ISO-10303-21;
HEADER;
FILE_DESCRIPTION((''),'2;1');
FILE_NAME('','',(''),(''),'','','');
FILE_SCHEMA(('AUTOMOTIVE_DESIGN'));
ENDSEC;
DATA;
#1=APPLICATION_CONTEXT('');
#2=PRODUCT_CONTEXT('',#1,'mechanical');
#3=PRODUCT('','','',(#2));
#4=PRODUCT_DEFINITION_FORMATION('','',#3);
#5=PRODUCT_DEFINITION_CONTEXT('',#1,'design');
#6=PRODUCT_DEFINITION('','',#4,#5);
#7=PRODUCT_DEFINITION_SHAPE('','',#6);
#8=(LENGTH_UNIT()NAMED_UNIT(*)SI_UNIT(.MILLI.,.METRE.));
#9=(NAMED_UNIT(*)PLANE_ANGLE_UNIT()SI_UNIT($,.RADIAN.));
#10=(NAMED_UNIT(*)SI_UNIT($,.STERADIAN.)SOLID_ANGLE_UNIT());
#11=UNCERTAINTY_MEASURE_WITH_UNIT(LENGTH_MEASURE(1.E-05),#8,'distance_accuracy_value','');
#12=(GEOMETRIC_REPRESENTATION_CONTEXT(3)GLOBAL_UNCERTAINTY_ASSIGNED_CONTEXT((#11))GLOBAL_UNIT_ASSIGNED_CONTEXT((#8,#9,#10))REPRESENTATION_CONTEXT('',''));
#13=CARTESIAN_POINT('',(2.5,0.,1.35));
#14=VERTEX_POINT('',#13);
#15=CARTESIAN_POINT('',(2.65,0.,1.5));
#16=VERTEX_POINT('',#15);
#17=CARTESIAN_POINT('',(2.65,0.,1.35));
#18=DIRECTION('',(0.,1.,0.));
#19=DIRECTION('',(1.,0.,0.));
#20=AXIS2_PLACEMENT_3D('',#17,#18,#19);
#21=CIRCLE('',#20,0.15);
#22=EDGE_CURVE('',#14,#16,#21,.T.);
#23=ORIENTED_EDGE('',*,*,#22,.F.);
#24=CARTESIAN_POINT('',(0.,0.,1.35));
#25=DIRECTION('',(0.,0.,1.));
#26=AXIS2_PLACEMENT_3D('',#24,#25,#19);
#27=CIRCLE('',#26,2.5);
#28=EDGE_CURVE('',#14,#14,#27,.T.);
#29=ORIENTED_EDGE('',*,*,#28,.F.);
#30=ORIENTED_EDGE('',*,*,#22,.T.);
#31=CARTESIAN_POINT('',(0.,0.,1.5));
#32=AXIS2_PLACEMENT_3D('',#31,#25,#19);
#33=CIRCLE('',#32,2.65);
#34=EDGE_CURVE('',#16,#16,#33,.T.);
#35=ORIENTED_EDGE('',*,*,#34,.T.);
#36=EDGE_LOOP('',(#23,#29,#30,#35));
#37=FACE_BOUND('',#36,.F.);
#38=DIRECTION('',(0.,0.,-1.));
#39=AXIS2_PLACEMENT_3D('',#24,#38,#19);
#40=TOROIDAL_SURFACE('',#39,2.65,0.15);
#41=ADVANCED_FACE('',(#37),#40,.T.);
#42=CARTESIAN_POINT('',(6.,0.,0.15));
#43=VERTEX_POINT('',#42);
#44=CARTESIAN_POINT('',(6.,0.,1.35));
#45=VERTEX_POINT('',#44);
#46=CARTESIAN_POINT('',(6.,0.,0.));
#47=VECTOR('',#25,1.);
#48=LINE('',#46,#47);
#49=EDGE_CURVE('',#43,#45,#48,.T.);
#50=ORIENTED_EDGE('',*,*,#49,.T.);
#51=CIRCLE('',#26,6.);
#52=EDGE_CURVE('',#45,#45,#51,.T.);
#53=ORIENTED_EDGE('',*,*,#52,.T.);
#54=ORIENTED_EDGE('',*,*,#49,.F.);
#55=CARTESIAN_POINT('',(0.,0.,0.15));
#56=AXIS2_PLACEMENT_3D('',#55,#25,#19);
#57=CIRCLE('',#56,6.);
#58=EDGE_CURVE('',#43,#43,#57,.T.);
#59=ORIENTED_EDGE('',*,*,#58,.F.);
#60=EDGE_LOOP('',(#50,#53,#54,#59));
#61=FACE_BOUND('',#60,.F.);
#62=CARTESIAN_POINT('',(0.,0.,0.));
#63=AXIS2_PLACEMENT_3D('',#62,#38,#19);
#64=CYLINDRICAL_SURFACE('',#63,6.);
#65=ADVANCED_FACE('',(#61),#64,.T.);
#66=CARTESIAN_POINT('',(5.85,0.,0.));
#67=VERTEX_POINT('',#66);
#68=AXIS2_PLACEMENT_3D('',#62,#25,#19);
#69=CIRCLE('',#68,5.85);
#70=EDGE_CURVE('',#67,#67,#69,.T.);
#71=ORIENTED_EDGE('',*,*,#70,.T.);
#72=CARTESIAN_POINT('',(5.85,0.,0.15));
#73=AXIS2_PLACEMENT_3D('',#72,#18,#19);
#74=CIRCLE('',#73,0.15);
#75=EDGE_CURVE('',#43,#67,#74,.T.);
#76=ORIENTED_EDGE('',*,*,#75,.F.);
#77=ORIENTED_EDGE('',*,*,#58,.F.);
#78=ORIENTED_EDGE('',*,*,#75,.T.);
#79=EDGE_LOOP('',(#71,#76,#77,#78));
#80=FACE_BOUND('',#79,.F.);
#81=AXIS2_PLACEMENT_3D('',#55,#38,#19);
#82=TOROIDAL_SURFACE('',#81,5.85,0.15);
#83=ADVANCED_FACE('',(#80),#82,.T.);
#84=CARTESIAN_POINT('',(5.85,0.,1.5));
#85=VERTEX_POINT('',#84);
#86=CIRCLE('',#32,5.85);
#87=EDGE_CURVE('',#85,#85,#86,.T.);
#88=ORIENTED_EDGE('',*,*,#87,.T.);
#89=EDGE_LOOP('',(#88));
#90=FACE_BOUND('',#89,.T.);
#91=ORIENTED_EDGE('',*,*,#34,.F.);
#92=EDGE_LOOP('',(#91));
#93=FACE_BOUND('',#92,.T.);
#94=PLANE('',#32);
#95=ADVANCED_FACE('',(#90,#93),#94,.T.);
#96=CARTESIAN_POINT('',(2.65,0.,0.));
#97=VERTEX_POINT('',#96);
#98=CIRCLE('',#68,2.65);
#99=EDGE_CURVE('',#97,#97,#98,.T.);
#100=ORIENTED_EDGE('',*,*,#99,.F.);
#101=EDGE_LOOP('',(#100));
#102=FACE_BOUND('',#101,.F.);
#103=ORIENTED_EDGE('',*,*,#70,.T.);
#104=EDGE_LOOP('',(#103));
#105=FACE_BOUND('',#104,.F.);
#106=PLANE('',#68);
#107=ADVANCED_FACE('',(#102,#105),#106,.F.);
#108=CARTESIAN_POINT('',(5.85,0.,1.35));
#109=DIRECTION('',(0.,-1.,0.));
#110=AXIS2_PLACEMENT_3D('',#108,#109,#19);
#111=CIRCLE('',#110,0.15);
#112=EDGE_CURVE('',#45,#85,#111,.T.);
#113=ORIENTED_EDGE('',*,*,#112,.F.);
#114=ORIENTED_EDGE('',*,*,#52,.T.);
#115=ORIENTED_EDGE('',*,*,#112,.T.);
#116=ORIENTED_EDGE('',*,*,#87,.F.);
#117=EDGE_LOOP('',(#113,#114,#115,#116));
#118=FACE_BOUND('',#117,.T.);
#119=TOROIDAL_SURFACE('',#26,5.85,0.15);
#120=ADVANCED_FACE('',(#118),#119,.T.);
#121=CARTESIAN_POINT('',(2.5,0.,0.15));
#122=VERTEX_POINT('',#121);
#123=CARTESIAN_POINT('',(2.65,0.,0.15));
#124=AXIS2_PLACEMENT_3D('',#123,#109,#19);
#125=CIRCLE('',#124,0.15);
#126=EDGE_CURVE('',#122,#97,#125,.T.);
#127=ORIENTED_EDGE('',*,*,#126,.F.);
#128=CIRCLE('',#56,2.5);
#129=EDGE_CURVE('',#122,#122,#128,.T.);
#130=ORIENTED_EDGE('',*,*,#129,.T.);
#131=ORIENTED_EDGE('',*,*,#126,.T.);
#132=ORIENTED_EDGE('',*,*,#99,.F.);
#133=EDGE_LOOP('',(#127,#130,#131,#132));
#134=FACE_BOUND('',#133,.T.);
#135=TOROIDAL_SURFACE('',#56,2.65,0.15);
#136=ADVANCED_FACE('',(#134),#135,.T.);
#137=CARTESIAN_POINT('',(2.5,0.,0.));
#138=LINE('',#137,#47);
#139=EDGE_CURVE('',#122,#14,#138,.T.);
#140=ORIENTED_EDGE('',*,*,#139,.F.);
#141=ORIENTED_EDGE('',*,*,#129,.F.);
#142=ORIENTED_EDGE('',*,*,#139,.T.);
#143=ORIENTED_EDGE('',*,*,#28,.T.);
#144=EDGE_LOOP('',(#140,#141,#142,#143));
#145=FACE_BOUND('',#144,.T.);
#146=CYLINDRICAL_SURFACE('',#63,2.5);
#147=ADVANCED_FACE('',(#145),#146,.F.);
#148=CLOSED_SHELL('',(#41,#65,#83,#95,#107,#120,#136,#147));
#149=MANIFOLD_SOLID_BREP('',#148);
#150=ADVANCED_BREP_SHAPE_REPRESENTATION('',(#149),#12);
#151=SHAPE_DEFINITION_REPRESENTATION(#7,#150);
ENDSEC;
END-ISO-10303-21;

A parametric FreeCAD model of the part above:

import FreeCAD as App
import Part
import Sketcher

V = App.Vector


def edges_at(feature, points):
    """Names of the edges that pass closest to the given points."""
    edges = feature.Shape.Edges
    near = lambda p: min(range(len(edges)), key=lambda i: edges[i].distToShape(Part.Vertex(*p))[0])
    return sorted({f"Edge{near(p) + 1}" for p in points})

doc = App.newDocument("Part")
params = doc.addObject("Spreadsheet::Sheet", "Params")
for row, (alias, value) in enumerate([
    ("sketch1_diameter", "12 mm"),
    ("sketch1_diameter2", "5 mm"),
    ("pad1_length", "1.5 mm"),
    ("fillet_radius", "0.15 mm"),
], start=1):
    params.set(f"A{row}", alias)
    params.set(f"B{row}", "=" + value)
    params.setAlias(f"B{row}", alias)

body = doc.addObject("PartDesign::Body", "Body")

# Sketch on XY plane
sketch1 = doc.addObject("Sketcher::SketchObject", "Sketch")
body.addObject(sketch1)
sketch1.AttachmentSupport = (doc.XY_Plane, [""])
sketch1.MapMode = "FlatFace"
sketch1.addGeometry([
    Part.Circle(V(0, 0, 0), V(0, 0, 1), 6),
    Part.Circle(V(0, 0, 0), V(0, 0, 1), 2.5),
], False)
sketch1.addConstraint([
    Sketcher.Constraint("Coincident", 0, 3, -1, 1),
    Sketcher.Constraint("Coincident", 1, 3, -1, 1),
    Sketcher.Constraint("Diameter", 0, 12.0),
    Sketcher.Constraint("Diameter", 1, 5.0),
])
sketch1.setExpression("Constraints[2]", "Params.sketch1_diameter")
sketch1.setExpression("Constraints[3]", "Params.sketch1_diameter2")
pad1 = doc.addObject("PartDesign::Pad", "Pad")
body.addObject(pad1)
pad1.Profile = sketch1
pad1.setExpression("Length", "Params.pad1_length")
doc.recompute()

fillet = doc.addObject("PartDesign::Fillet", "Fillet")
body.addObject(fillet)
fillet.Base = (pad1, edges_at(pad1, [
    (-6, 0, 0),
    (-6, 0, 1.5),
    (-2.5, 0, 0),
    (-2.5, 0, 1.5),
]))
fillet.setExpression("Radius", "Params.fillet_radius")

doc.recompute()
